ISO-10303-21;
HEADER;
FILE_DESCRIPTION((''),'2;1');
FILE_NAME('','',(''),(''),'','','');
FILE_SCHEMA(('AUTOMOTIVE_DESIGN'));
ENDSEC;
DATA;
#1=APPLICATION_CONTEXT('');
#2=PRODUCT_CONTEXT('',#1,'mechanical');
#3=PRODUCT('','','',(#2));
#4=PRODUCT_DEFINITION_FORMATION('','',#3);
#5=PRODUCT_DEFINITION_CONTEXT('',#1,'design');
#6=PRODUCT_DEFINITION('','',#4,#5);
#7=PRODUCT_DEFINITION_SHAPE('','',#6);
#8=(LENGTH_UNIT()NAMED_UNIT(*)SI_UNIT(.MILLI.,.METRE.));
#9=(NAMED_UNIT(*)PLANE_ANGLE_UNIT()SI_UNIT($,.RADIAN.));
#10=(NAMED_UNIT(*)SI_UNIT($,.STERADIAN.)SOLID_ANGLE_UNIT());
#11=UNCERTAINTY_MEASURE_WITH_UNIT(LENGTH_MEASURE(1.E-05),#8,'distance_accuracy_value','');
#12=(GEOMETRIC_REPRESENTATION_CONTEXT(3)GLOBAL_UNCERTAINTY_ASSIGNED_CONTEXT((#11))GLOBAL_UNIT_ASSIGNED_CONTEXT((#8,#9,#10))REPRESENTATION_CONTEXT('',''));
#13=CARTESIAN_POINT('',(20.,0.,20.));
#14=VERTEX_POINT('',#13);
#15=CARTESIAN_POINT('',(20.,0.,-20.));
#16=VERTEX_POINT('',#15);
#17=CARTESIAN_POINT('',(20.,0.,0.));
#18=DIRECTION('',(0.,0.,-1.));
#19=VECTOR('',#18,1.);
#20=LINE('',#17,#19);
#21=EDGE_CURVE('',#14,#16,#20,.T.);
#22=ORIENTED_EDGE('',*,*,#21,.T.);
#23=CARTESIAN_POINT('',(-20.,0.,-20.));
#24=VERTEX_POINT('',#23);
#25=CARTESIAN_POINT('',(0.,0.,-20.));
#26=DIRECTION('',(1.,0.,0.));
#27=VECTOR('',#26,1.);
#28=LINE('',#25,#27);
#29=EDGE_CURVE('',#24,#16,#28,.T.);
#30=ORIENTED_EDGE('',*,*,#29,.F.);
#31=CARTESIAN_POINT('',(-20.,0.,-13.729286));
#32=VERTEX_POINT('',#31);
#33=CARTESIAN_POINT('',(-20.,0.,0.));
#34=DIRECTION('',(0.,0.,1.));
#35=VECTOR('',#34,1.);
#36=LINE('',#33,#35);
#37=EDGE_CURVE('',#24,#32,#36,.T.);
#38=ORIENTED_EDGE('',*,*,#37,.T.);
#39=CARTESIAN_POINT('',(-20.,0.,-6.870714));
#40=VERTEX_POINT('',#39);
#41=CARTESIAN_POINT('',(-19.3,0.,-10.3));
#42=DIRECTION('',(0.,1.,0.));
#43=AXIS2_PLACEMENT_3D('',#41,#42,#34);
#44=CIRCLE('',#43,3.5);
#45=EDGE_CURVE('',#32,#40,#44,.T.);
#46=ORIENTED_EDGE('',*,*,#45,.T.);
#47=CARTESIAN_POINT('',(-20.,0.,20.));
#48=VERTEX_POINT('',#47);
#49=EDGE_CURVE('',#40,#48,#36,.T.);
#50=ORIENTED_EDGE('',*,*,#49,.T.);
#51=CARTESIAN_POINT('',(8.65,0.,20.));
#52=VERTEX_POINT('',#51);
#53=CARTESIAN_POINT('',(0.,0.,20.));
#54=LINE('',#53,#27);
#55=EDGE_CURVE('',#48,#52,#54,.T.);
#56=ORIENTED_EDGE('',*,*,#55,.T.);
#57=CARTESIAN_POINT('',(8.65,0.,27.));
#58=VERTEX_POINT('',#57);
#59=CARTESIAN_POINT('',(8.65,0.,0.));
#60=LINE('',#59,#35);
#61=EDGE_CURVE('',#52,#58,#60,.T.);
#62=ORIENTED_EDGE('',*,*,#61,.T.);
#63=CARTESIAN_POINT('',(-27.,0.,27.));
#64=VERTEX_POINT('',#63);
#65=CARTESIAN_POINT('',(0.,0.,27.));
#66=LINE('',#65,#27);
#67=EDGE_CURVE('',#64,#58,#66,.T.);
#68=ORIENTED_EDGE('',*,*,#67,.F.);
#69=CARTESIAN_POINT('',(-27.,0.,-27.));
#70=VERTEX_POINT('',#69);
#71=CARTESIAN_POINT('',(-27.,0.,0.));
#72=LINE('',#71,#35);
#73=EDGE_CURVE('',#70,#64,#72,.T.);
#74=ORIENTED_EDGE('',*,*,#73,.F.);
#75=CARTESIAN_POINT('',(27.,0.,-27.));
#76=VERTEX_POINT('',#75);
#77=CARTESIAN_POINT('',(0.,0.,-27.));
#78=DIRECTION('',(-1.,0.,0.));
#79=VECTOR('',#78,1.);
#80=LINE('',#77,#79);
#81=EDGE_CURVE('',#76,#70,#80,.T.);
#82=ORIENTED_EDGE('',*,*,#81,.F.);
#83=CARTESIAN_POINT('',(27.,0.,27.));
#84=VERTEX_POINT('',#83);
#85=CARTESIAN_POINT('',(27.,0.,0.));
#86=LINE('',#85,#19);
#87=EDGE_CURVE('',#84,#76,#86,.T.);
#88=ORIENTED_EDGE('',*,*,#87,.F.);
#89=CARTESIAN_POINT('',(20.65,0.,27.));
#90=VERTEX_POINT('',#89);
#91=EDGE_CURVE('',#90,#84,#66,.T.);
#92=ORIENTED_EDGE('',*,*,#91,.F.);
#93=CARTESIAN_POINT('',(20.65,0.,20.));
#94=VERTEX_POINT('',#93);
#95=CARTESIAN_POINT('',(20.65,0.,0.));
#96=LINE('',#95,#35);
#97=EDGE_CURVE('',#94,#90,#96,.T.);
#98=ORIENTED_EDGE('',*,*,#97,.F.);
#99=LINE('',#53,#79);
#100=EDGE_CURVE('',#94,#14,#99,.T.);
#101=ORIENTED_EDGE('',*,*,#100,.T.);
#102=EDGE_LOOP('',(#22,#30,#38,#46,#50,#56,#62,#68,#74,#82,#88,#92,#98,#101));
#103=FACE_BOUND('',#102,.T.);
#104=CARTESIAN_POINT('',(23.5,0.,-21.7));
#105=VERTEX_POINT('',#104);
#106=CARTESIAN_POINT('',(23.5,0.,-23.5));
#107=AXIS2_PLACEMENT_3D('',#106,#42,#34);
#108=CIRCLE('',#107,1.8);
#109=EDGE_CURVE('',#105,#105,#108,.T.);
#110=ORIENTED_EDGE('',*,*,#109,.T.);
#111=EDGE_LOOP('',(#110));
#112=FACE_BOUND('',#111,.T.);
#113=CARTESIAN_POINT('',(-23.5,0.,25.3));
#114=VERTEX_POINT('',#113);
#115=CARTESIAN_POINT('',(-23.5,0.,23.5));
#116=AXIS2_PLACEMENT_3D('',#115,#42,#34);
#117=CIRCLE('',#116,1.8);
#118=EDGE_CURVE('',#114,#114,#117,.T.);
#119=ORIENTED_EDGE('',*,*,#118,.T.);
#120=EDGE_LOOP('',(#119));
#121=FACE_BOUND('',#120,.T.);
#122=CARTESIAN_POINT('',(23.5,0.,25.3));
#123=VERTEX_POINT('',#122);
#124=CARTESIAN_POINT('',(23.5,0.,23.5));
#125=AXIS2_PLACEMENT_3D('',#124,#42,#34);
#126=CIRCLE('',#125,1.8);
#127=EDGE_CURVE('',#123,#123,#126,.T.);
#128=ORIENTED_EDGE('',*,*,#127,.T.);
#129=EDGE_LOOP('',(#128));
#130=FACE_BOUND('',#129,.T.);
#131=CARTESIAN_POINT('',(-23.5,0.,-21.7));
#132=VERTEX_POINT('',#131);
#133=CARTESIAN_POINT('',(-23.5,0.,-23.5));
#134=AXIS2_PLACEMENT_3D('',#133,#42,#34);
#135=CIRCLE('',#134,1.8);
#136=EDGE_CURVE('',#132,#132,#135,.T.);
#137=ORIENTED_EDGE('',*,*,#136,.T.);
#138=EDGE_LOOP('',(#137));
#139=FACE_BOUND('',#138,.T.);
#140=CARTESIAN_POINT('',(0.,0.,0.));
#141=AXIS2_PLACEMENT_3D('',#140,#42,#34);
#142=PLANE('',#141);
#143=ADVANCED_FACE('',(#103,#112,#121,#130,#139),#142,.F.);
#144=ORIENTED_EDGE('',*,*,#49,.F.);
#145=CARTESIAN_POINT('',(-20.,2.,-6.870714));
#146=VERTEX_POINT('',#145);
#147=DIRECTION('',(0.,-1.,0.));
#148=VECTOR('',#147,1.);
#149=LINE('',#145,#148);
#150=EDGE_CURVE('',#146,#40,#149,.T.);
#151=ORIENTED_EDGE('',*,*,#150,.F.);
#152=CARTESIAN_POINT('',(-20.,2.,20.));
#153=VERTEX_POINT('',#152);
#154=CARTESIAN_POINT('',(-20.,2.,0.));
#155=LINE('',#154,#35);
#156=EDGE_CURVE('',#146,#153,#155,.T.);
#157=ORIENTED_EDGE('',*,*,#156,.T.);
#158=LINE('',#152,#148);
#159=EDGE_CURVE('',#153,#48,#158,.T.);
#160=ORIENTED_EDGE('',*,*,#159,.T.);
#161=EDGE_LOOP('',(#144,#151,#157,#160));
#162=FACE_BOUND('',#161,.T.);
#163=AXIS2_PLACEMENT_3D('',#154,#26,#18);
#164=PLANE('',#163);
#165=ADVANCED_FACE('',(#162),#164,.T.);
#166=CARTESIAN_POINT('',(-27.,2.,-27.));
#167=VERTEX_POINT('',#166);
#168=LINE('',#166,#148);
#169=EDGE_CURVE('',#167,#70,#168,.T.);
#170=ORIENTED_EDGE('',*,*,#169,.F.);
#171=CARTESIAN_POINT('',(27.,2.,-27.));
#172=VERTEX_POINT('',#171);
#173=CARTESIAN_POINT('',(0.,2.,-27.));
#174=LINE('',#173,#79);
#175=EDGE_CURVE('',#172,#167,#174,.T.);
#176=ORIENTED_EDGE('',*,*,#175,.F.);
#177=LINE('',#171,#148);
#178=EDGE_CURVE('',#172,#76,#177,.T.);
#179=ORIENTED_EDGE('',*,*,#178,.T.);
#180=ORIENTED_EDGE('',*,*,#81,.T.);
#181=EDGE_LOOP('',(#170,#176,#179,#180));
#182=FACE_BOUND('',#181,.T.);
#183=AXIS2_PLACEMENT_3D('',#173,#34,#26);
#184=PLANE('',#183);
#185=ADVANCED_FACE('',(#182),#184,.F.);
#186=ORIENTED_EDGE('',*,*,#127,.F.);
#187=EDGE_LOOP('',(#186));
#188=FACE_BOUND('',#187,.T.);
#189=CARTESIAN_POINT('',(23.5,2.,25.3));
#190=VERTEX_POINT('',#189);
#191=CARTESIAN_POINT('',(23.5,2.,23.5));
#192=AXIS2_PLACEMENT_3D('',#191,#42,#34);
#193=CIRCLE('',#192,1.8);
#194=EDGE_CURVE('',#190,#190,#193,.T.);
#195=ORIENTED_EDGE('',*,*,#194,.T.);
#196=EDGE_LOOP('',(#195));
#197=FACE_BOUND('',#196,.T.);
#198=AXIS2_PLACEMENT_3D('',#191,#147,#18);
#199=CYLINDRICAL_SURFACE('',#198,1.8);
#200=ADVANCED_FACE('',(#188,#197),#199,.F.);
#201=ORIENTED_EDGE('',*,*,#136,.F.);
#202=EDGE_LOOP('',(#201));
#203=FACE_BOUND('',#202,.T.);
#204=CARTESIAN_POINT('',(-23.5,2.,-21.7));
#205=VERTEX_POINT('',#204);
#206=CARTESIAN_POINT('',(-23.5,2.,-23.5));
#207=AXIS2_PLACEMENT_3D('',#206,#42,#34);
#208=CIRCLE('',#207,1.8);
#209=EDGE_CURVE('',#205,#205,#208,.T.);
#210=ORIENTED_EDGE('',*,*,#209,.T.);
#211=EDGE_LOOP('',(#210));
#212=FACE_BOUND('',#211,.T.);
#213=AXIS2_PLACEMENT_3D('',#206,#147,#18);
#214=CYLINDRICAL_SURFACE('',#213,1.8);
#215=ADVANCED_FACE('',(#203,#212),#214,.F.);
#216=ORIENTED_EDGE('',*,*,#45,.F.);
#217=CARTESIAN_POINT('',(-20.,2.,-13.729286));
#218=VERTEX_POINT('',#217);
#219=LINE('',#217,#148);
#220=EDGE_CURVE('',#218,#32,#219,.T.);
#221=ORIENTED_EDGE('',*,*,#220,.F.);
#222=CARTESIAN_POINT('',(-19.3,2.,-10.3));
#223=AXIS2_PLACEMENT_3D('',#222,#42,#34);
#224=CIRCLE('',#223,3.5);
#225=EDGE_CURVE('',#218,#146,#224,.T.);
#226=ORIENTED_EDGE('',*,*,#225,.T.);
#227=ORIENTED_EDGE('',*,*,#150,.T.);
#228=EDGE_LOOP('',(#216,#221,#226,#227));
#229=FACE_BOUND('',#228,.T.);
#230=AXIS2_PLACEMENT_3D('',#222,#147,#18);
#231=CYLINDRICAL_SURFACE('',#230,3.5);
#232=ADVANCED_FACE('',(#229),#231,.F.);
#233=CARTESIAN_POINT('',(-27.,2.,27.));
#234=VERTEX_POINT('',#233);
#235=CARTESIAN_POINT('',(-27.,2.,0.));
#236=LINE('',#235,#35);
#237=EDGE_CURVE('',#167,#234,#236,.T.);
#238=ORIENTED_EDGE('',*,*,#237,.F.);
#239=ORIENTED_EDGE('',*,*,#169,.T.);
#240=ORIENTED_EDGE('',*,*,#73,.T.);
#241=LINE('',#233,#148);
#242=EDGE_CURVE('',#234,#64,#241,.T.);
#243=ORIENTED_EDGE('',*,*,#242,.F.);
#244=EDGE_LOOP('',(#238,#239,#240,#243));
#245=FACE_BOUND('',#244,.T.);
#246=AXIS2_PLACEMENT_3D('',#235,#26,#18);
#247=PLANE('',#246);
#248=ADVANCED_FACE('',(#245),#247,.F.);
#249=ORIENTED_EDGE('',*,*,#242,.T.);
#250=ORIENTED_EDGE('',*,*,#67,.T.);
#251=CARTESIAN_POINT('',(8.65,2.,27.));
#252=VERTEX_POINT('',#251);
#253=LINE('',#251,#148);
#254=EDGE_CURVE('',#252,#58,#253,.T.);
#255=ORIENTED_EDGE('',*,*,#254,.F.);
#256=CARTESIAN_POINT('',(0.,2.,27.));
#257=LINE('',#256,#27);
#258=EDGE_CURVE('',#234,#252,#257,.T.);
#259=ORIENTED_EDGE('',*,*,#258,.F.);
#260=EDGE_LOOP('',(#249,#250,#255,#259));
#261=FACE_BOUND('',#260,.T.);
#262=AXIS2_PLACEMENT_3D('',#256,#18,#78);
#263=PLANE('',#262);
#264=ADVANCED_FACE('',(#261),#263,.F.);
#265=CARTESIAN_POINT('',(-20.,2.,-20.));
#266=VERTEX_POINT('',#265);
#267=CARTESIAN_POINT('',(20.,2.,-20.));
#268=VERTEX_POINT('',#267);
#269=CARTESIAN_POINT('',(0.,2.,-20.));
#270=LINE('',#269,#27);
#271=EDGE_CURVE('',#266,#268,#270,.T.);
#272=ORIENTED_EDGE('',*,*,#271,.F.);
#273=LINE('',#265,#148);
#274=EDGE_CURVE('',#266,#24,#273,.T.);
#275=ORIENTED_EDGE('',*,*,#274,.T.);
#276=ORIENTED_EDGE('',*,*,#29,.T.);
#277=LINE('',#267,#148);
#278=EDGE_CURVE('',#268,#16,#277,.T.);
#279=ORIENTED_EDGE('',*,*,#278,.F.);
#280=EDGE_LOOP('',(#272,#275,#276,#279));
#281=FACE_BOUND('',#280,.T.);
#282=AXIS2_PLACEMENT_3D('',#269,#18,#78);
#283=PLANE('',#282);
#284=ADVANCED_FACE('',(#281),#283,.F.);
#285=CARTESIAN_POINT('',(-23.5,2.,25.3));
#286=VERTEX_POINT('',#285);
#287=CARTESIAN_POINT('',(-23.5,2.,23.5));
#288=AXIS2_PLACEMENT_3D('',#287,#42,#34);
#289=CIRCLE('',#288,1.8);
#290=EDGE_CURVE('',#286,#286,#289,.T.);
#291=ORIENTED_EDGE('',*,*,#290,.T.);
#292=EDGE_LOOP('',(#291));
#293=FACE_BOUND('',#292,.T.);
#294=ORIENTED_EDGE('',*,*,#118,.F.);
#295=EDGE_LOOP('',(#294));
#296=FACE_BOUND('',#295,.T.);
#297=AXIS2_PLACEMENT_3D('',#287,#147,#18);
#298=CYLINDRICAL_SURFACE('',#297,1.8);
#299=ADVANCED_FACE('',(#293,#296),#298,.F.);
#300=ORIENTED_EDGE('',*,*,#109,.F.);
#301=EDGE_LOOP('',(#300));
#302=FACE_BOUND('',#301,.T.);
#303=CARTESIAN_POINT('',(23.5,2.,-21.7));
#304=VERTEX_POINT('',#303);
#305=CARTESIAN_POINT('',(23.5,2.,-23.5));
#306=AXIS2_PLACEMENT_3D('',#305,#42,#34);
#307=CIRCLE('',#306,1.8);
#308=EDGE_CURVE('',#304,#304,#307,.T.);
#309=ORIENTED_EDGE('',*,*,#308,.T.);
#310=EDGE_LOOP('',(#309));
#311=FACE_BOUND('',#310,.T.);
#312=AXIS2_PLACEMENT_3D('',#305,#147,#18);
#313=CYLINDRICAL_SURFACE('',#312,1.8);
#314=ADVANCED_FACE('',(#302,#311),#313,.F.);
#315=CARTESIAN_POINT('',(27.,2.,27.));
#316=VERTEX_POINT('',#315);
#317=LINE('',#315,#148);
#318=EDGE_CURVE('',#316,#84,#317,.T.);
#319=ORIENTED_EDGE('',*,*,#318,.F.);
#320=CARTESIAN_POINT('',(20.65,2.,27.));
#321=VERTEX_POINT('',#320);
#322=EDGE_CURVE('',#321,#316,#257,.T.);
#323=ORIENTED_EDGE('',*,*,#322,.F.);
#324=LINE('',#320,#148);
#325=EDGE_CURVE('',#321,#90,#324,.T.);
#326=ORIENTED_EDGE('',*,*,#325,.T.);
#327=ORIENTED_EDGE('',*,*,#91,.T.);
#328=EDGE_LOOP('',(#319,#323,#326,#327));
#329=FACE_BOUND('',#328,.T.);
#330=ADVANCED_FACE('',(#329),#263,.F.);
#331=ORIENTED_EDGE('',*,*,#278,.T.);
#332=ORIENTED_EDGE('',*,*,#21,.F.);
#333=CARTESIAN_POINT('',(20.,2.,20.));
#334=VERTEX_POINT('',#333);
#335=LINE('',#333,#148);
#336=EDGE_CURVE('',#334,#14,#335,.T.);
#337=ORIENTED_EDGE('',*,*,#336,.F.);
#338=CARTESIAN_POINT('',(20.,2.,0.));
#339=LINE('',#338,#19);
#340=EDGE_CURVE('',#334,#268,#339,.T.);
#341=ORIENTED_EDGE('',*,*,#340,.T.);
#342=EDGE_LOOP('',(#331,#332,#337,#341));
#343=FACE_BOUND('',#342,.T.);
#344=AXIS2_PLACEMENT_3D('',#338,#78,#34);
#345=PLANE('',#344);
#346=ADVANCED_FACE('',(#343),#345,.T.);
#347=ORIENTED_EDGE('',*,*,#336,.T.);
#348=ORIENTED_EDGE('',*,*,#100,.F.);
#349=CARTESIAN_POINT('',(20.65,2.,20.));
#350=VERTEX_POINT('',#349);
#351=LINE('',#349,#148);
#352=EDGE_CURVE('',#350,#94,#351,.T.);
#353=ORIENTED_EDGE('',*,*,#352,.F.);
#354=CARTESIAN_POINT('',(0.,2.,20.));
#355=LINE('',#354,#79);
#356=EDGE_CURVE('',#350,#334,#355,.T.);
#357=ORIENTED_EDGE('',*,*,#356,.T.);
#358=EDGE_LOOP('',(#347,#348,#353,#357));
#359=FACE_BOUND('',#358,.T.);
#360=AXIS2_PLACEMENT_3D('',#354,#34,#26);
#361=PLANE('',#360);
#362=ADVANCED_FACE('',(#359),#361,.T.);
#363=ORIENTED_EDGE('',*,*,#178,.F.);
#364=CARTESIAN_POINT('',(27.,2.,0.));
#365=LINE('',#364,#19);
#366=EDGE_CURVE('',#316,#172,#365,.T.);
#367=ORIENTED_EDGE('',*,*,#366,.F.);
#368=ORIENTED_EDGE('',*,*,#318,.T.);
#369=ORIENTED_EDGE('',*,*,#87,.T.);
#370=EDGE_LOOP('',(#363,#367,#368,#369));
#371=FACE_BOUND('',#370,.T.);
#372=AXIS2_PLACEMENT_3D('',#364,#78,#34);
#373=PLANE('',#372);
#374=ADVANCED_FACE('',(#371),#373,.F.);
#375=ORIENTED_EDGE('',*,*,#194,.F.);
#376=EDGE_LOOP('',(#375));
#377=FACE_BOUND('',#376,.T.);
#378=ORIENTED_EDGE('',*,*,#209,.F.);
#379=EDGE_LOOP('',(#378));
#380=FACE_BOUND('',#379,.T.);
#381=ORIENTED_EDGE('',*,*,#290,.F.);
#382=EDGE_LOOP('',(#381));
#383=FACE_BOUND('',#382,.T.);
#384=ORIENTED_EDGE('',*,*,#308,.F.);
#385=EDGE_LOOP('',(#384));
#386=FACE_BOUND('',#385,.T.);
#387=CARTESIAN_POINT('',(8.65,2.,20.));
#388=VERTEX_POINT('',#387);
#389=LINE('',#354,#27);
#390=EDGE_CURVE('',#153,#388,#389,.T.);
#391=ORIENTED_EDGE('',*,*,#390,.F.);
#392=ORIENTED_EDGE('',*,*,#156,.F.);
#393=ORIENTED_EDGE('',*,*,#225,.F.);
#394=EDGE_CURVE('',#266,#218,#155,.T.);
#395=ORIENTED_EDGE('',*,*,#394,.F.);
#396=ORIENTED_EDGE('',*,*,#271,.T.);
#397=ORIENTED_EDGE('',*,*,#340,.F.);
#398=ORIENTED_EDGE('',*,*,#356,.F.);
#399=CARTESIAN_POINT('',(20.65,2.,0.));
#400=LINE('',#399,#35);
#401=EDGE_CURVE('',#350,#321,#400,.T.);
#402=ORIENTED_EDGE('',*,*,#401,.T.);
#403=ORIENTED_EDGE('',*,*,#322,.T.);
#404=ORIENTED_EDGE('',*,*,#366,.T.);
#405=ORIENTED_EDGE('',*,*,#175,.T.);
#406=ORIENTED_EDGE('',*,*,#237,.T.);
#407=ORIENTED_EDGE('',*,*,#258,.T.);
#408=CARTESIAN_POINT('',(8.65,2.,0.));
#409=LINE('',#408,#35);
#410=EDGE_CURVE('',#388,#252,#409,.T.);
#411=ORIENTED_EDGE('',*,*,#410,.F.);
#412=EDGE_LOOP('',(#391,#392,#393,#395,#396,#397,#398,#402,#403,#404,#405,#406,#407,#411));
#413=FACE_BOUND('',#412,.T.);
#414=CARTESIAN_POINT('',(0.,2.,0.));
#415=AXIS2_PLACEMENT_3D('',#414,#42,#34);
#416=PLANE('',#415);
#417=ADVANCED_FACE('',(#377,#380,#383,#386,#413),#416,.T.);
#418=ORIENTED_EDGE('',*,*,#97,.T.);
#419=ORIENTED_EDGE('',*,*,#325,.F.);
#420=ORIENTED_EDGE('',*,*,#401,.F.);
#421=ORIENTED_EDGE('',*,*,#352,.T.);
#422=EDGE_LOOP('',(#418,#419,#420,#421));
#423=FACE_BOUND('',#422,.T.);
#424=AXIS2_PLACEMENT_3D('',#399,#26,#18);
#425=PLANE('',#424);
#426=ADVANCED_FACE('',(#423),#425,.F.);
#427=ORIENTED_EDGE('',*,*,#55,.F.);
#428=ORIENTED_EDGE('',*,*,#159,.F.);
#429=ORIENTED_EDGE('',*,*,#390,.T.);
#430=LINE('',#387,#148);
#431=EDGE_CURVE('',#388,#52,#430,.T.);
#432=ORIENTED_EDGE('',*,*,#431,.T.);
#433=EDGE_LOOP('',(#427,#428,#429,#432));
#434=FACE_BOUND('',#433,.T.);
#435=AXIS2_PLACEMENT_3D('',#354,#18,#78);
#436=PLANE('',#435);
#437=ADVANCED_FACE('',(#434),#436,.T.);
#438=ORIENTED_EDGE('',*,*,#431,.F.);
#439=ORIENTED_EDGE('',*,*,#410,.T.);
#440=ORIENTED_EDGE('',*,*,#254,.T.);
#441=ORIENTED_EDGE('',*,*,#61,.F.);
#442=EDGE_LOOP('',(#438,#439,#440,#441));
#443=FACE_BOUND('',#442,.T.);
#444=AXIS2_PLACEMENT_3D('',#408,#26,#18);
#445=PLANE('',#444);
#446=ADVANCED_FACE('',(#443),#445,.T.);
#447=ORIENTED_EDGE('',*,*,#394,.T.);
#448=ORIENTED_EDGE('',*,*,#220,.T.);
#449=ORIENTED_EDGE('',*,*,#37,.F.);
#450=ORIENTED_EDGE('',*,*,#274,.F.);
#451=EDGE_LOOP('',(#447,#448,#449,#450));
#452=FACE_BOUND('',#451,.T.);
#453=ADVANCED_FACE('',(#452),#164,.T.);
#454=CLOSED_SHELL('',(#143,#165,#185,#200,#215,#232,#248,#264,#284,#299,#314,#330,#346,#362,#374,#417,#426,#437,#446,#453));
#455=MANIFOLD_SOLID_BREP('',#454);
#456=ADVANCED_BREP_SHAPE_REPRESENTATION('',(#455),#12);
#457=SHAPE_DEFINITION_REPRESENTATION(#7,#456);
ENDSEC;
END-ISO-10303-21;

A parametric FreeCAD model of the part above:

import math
import FreeCAD as App
import Part
import Sketcher

doc = App.newDocument("Part")
body = doc.addObject("PartDesign::Body", "Body")

# Sketch on XZ plane
sketch1 = doc.addObject("Sketcher::SketchObject", "Sketch")
body.addObject(sketch1)
sketch1.AttachmentSupport = (doc.XZ_Plane, [""])
sketch1.MapMode = "FlatFace"
sketch1.addGeometry([
    Part.LineSegment(App.Vector(20, -20, 0), App.Vector(20, 20, 0)),  # 0
    Part.LineSegment(App.Vector(20, 20, 0), App.Vector(20.6, 20, 0)),  # 1
    Part.LineSegment(App.Vector(20.6, 20, 0), App.Vector(20.6, 27, 0)),  # 2
    Part.LineSegment(App.Vector(20.6, 27, 0), App.Vector(27, 27, 0)),  # 3
    Part.LineSegment(App.Vector(27, 27, 0), App.Vector(27, -27, 0)),  # 4
    Part.LineSegment(App.Vector(27, -27, 0), App.Vector(-27, -27, 0)),  # 5
    Part.LineSegment(App.Vector(-27, -27, 0), App.Vector(-27, 27, 0)),  # 6
    Part.LineSegment(App.Vector(-27, 27, 0), App.Vector(8.7, 27, 0)),  # 7
    Part.LineSegment(App.Vector(8.7, 27, 0), App.Vector(8.7, 20, 0)),  # 8
    Part.LineSegment(App.Vector(8.7, 20, 0), App.Vector(-20, 20, 0)),  # 9
    Part.LineSegment(App.Vector(-20, 20, 0), App.Vector(-20, -6.9, 0)),  # 10
    Part.ArcOfCircle(Part.Circle(App.Vector(-19.3, -10.3, 0), App.Vector(0, 0, 1), 3.5), math.radians(102), math.radians(258)),  # 11
    Part.LineSegment(App.Vector(-20, -13.7, 0), App.Vector(-20, -20, 0)),  # 12
    Part.LineSegment(App.Vector(-20, -20, 0), App.Vector(20, -20, 0)),  # 13
    Part.Circle(App.Vector(-23.5, 23.5, 0), App.Vector(0, 0, 1), 1.8),  # 14
    Part.Circle(App.Vector(23.5, 23.5, 0), App.Vector(0, 0, 1), 1.8),  # 15
    Part.Circle(App.Vector(-23.5, -23.5, 0), App.Vector(0, 0, 1), 1.8),  # 16
    Part.Circle(App.Vector(23.5, -23.5, 0), App.Vector(0, 0, 1), 1.8),  # 17
], False)
sketch1.addConstraint([
    Sketcher.Constraint("Coincident", 0, 2, 1, 1),
    Sketcher.Constraint("Coincident", 1, 2, 2, 1),
    Sketcher.Constraint("Coincident", 2, 2, 3, 1),
    Sketcher.Constraint("Coincident", 3, 2, 4, 1),
    Sketcher.Constraint("Coincident", 4, 2, 5, 1),
    Sketcher.Constraint("Coincident", 5, 2, 6, 1),
    Sketcher.Constraint("Coincident", 6, 2, 7, 1),
    Sketcher.Constraint("Coincident", 7, 2, 8, 1),
    Sketcher.Constraint("Coincident", 8, 2, 9, 1),
    Sketcher.Constraint("Coincident", 9, 2, 10, 1),
    Sketcher.Constraint("Coincident", 10, 2, 11, 1),
    Sketcher.Constraint("Coincident", 11, 2, 12, 1),
    Sketcher.Constraint("Coincident", 12, 2, 13, 1),
    Sketcher.Constraint("Coincident", 13, 2, 0, 1),
    Sketcher.Constraint("Vertical", 0),
    Sketcher.Constraint("Horizontal", 1),
    Sketcher.Constraint("Vertical", 2),
    Sketcher.Constraint("Horizontal", 3),
    Sketcher.Constraint("Vertical", 4),
    Sketcher.Constraint("Horizontal", 5),
    Sketcher.Constraint("Vertical", 6),
    Sketcher.Constraint("Horizontal", 7),
    Sketcher.Constraint("Vertical", 8),
    Sketcher.Constraint("Horizontal", 9),
    Sketcher.Constraint("Vertical", 10),
    Sketcher.Constraint("Vertical", 12),
    Sketcher.Constraint("Horizontal", 13),
    Sketcher.Constraint("Equal", 14, 15),
    Sketcher.Constraint("Equal", 15, 16),
    Sketcher.Constraint("Equal", 16, 17),
    Sketcher.Constraint("Symmetric", 15, 3, 16, 3, -1, 1),
    Sketcher.Constraint("Symmetric", 14, 3, 17, 3, -1, 1),
    Sketcher.Constraint("Symmetric", 3, 2, 5, 2, -1, 1),
    Sketcher.Constraint("Symmetric", 0, 2, 12, 2, -1, 1),
    Sketcher.Constraint("Symmetric", 9, 2, 13, 2, -1, 1),
    Sketcher.Constraint("Symmetric", 14, 3, 15, 3, -2),
    Sketcher.Constraint("Horizontal", 3, 2, 6, 2),
    Sketcher.Constraint("Equal", 13, 0),
    Sketcher.Constraint("Equal", 5, 4),
    Sketcher.Constraint("Diameter", 14, 3.6),
    Sketcher.Constraint("Radius", 11, 3.5),
    Sketcher.Constraint("DistanceX", 5, 2, 5, 1, 54.0),
    Sketcher.Constraint("DistanceX", 13, 1, 13, 2, 40.0),
    Sketcher.Constraint("DistanceX", 14, 3, 15, 3, 47.0),
    Sketcher.Constraint("DistanceY", 16, 3, 14, 3, 47.0),
    Sketcher.Constraint("DistanceX", 7, 2, 2, 2, 12.0),
    Sketcher.Constraint("DistanceX", 1, 1, 1, 2, 0.65),
    Sketcher.Constraint("DistanceX", 11, 3, -1, 1, 19.3),
    Sketcher.Constraint("DistanceY", 11, 3, -1, 1, 10.3),
])
pad1 = doc.addObject("PartDesign::Pad", "Pad")
body.addObject(pad1)
pad1.Profile = sketch1
pad1.Length = 2
pad1.Reversed = True

doc.recompute()
